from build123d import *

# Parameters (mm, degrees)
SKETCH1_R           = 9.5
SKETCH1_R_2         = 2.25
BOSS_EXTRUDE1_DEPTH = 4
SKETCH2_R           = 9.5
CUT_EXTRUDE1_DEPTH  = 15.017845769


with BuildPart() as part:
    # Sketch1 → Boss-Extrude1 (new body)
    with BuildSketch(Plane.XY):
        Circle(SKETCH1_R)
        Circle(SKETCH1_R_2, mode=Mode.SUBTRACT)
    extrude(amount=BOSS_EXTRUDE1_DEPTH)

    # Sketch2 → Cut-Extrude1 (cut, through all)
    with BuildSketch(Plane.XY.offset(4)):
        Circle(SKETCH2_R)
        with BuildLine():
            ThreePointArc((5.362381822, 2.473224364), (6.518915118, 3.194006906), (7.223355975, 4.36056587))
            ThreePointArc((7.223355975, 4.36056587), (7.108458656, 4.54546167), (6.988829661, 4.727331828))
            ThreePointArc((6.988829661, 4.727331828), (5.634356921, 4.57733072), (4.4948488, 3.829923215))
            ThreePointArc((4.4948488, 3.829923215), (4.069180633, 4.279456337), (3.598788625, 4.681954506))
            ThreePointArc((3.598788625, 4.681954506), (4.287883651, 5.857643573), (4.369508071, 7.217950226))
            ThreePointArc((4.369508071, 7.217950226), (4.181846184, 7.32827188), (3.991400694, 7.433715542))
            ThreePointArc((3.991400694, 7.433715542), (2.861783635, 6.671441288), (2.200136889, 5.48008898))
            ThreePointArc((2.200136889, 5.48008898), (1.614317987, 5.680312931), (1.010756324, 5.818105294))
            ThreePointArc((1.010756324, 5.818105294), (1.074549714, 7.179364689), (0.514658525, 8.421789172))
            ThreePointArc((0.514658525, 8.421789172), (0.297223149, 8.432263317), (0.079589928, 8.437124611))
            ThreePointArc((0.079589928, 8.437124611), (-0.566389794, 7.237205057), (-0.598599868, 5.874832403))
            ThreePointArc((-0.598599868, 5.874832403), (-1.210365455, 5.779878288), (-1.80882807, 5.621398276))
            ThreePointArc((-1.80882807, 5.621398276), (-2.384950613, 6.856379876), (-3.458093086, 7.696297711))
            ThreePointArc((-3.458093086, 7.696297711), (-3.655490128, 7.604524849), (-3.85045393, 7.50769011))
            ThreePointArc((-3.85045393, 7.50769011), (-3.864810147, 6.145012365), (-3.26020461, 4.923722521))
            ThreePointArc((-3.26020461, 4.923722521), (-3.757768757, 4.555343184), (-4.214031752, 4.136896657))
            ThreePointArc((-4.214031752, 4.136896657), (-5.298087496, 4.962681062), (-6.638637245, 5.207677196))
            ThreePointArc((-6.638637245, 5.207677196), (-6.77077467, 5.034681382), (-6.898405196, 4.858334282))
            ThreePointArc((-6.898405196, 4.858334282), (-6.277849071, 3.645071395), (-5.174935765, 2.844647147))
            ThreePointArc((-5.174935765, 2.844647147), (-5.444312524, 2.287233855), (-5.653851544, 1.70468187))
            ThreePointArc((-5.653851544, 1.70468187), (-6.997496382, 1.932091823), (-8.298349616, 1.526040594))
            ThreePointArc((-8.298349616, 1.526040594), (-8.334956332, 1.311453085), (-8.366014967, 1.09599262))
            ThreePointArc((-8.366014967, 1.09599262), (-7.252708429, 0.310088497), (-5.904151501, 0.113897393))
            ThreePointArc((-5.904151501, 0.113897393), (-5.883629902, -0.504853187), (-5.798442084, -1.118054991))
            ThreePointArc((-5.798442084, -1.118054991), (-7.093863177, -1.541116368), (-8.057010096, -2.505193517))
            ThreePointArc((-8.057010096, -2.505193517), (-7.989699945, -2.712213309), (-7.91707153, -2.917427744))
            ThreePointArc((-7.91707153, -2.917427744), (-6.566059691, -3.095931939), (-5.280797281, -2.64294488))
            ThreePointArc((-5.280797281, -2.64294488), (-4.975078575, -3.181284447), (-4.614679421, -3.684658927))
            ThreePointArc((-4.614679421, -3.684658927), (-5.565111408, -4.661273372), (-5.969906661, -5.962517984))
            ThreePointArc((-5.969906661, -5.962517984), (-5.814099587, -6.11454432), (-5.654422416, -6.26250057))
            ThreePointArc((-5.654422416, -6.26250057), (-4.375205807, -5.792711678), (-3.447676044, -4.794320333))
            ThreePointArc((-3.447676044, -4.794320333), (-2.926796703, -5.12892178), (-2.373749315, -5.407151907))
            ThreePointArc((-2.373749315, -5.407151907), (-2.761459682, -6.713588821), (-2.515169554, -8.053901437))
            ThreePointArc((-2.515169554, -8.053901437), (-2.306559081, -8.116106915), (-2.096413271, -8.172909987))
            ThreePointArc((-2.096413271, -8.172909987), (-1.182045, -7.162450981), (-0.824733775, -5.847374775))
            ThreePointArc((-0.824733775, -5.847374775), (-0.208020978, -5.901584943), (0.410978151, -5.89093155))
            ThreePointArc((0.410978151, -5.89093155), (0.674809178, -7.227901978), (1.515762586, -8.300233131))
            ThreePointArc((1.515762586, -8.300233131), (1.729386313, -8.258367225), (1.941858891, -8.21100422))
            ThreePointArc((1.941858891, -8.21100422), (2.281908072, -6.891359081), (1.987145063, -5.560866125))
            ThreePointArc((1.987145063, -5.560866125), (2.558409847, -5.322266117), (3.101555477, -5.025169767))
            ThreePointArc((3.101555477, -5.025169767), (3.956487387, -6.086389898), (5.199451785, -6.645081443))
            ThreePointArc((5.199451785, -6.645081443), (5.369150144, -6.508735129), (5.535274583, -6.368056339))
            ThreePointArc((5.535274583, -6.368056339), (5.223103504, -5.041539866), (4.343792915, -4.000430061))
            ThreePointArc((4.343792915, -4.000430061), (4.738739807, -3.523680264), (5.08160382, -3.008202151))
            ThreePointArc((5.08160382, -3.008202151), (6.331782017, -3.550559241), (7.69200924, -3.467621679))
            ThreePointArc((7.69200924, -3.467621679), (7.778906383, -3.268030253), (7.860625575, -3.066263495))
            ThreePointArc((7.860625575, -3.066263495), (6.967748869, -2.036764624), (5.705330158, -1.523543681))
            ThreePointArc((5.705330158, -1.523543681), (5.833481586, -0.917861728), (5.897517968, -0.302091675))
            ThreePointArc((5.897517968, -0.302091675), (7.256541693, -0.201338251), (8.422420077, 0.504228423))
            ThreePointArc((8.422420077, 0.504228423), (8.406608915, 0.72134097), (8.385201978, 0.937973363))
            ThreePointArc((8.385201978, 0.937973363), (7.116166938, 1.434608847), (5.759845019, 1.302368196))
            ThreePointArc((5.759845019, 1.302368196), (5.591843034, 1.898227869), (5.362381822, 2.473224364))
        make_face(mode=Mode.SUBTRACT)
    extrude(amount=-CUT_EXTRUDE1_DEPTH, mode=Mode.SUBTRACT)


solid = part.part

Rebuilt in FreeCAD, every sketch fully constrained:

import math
import FreeCAD as App
import Part
import Sketcher

V = App.Vector

doc = App.newDocument("Part")
body = doc.addObject("PartDesign::Body", "Body")

# Sketch on XY plane
sketch1 = doc.addObject("Sketcher::SketchObject", "Sketch")
body.addObject(sketch1)
sketch1.AttachmentSupport = (doc.XY_Plane, [""])
sketch1.MapMode = "FlatFace"
sketch1.addGeometry([
    Part.Circle(V(0, 0, 0), V(0, 0, 1), 9.5),
    Part.Circle(V(0, 0, 0), V(0, 0, 1), 2.2),
], False)
sketch1.addConstraint([
    Sketcher.Constraint("Coincident", 0, 3, -1, 1),
    Sketcher.Constraint("Coincident", 1, 3, -1, 1),
    Sketcher.Constraint("Diameter", 0, 19.0),
    Sketcher.Constraint("Diameter", 1, 4.5),
])
pad1 = doc.addObject("PartDesign::Pad", "Pad")
body.addObject(pad1)
pad1.Profile = sketch1
pad1.Length = 4

# Sketch on XY plane
sketch2 = doc.addObject("Sketcher::SketchObject", "Sketch001")
body.addObject(sketch2)
sketch2.AttachmentSupport = (doc.XY_Plane, [""])
sketch2.MapMode = "FlatFace"
sketch2.AttachmentOffset = App.Placement(V(0, 0, 4), App.Rotation())
sketch2.addGeometry([
    Part.Circle(V(0, 0, 0), V(0, 0, 1), 9.5),  # 0
    Part.ArcOfCircle(Part.Circle(V(4.44, 5.25, 0), V(0, 0, 1), 2.92), math.radians(-72), math.radians(-18)),  # 1
    Part.ArcOfCircle(Part.Circle(V(0, 0, 0), V(0, 0, 1), 5.91), math.radians(12.74), math.radians(24.76)),  # 2
    Part.ArcOfCircle(Part.Circle(V(6.71, -1.46, 0), V(0, 0, 1), 2.92), math.radians(55), math.radians(109)),  # 3
    Part.ArcOfCircle(Part.Circle(V(0, 0, 0), V(0, 0, 1), 8.44), math.radians(3.43), math.radians(6.38)),  # 4
    Part.ArcOfCircle(Part.Circle(V(6.37, 2.59, 0), V(0, 0, 1), 2.93), math.radians(-99), math.radians(-45)),  # 5
    Part.ArcOfCircle(Part.Circle(V(0, 0, 0), V(0, 0, 1), 5.91), math.radians(-14.95), math.radians(-2.93)),  # 6
    Part.ArcOfCircle(Part.Circle(V(5.27, -4.42, 0), V(0, 0, 1), 2.92), math.radians(27), math.radians(81)),  # 7
    Part.ArcOfCircle(Part.Circle(V(0, 0, 0), V(0, 0, 1), 8.44), math.radians(-24.27), math.radians(-21.31)),  # 8
    Part.ArcOfCircle(Part.Circle(V(6.84, -0.67, 0), V(0, 0, 1), 2.93), math.radians(-127), math.radians(-73)),  # 9
    Part.ArcOfCircle(Part.Circle(V(0, 0, 0), V(0, 0, 1), 5.91), math.radians(-42.64), math.radians(-30.62)),  # 10
    Part.ArcOfCircle(Part.Circle(V(2.61, -6.36, 0), V(0, 0, 1), 2.93), math.radians(0), math.radians(54)),  # 11
    Part.ArcOfCircle(Part.Circle(V(0, 0, 0), V(0, 0, 1), 8.44), math.radians(-51.96), math.radians(-49)),  # 12
    Part.ArcOfCircle(Part.Circle(V(5.74, -3.77, 0), V(0, 0, 1), 2.92), math.radians(-155), math.radians(-101)),  # 13
    Part.ArcOfCircle(Part.Circle(V(0, 0, 0), V(0, 0, 1), 5.91), math.radians(-70.34), math.radians(-58.32)),  # 14
    Part.ArcOfCircle(Part.Circle(V(-0.64, -6.84, 0), V(0, 0, 1), 2.92), math.radians(-28), math.radians(26)),  # 15
    Part.ArcOfCircle(Part.Circle(V(0, 0, 0), V(0, 0, 1), 8.44), math.radians(-79.65), math.radians(-76.69)),  # 16
    Part.ArcOfCircle(Part.Circle(V(3.33, -6.01, 0), V(0, 0, 1), 2.93), math.radians(178), math.radians(232)),  # 17
    Part.ArcOfCircle(Part.Circle(V(0, 0, 0), V(0, 0, 1), 5.91), math.radians(-98.03), math.radians(-86.01)),  # 18
    Part.ArcOfCircle(Part.Circle(V(-3.75, -5.76, 0), V(0, 0, 1), 2.93), math.radians(-56), math.radians(-2)),  # 19
    Part.ArcOfCircle(Part.Circle(V(0, 0, 0), V(0, 0, 1), 8.44), math.radians(-107.34), math.radians(-104.39)),  # 20
    Part.ArcOfCircle(Part.Circle(V(0.16, -6.87, 0), V(0, 0, 1), 2.92), math.radians(150), math.radians(204)),  # 21
    Part.ArcOfCircle(Part.Circle(V(0, 0, 0), V(0, 0, 1), 5.91), math.radians(-125.72), math.radians(-113.7)),  # 22
    Part.ArcOfCircle(Part.Circle(V(-6, -3.36, 0), V(0, 0, 1), 2.92), math.radians(-83), math.radians(-29)),  # 23
    Part.ArcOfCircle(Part.Circle(V(0, 0, 0), V(0, 0, 1), 8.44), math.radians(-135.04), math.radians(-132.08)),  # 24
    Part.ArcOfCircle(Part.Circle(V(-3.05, -6.16, 0), V(0, 0, 1), 2.92), math.radians(122), math.radians(176)),  # 25
    Part.ArcOfCircle(Part.Circle(V(0, 0, 0), V(0, 0, 1), 5.91), math.radians(-153.41), math.radians(-141.39)),  # 26
    Part.ArcOfCircle(Part.Circle(V(-6.87, -0.19, 0), V(0, 0, 1), 2.92), math.radians(-111), math.radians(-57)),  # 27
    Part.ArcOfCircle(Part.Circle(V(0, 0, 0), V(0, 0, 1), 8.44), math.radians(-162.73), math.radians(-159.77)),  # 28
    Part.ArcOfCircle(Part.Circle(V(-5.56, -4.03, 0), V(0, 0, 1), 2.92), math.radians(95), math.radians(148)),  # 29
    Part.ArcOfCircle(Part.Circle(V(0, 0, 0), V(0, 0, 1), 5.91), math.radians(178.89), math.radians(190.91)),  # 30
    Part.ArcOfCircle(Part.Circle(V(-6.17, 3.03, 0), V(0, 0, 1), 2.92), math.radians(-139), math.radians(-85)),  # 31
    Part.ArcOfCircle(Part.Circle(V(0, 0, 0), V(0, 0, 1), 8.44), math.radians(169.58), math.radians(172.54)),  # 32
    Part.ArcOfCircle(Part.Circle(V(-6.8, -0.99, 0), V(0, 0, 1), 2.93), math.radians(67), math.radians(121)),  # 33
    Part.ArcOfCircle(Part.Circle(V(0, 0, 0), V(0, 0, 1), 5.91), math.radians(151.2), math.radians(163.22)),  # 34
    Part.ArcOfCircle(Part.Circle(V(-4.06, 5.55, 0), V(0, 0, 1), 2.92), math.radians(-166), math.radians(-112)),  # 35
    Part.ArcOfCircle(Part.Circle(V(0, 0, 0), V(0, 0, 1), 8.44), math.radians(141.89), math.radians(144.84)),  # 36
    Part.ArcOfCircle(Part.Circle(V(-6.48, 2.29, 0), V(0, 0, 1), 2.93), math.radians(39), math.radians(93)),  # 37
    Part.ArcOfCircle(Part.Circle(V(0, 0, 0), V(0, 0, 1), 5.91), math.radians(123.51), math.radians(135.53)),  # 38
    Part.ArcOfCircle(Part.Circle(V(-1.01, 6.8, 0), V(0, 0, 1), 2.92), math.radians(166), math.radians(220)),  # 39
    Part.ArcOfCircle(Part.Circle(V(0, 0, 0), V(0, 0, 1), 8.44), math.radians(114.2), math.radians(117.15)),  # 40
    Part.ArcOfCircle(Part.Circle(V(-4.67, 5.04, 0), V(0, 0, 1), 2.93), math.radians(12), math.radians(65)),  # 41
    Part.ArcOfCircle(Part.Circle(V(0, 0, 0), V(0, 0, 1), 5.91), math.radians(95.82), math.radians(107.84)),  # 42
    Part.ArcOfCircle(Part.Circle(V(2.26, 6.49, 0), V(0, 0, 1), 2.93), math.radians(138), math.radians(192)),  # 43
    Part.ArcOfCircle(Part.Circle(V(0, 0, 0), V(0, 0, 1), 8.44), math.radians(86.5), math.radians(89.46)),  # 44
    Part.ArcOfCircle(Part.Circle(V(-1.8, 6.63, 0), V(0, 0, 1), 2.93), math.radians(-16), math.radians(38)),  # 45
    Part.ArcOfCircle(Part.Circle(V(0, 0, 0), V(0, 0, 1), 5.91), math.radians(68.13), math.radians(80.14)),  # 46
    Part.ArcOfCircle(Part.Circle(V(5.02, 4.69, 0), V(0, 0, 1), 2.93), math.radians(111), math.radians(164)),  # 47
    Part.ArcOfCircle(Part.Circle(V(0, 0, 0), V(0, 0, 1), 8.44), math.radians(58.81), math.radians(61.77)),  # 48
    Part.ArcOfCircle(Part.Circle(V(1.49, 6.71, 0), V(0, 0, 1), 2.93), math.radians(-44), math.radians(10)),  # 49
    Part.ArcOfCircle(Part.Circle(V(0, 0, 0), V(0, 0, 1), 5.91), math.radians(40.43), math.radians(52.45)),  # 50
    Part.ArcOfCircle(Part.Circle(V(6.62, 1.83, 0), V(0, 0, 1), 2.92), math.radians(83), math.radians(137)),  # 51
    Part.ArcOfCircle(Part.Circle(V(0, 0, 0), V(0, 0, 1), 8.44), math.radians(31.12), math.radians(34.07)),  # 52
], False)
sketch2.addConstraint([
    Sketcher.Constraint("Coincident", 1, 1, 2, 2),
    Sketcher.Constraint("Coincident", 2, 1, 3, 2),
    Sketcher.Constraint("Coincident", 3, 1, 4, 2),
    Sketcher.Constraint("Coincident", 4, 1, 5, 2),
    Sketcher.Constraint("Coincident", 5, 1, 6, 2),
    Sketcher.Constraint("Coincident", 6, 1, 7, 2),
    Sketcher.Constraint("Coincident", 7, 1, 8, 2),
    Sketcher.Constraint("Coincident", 8, 1, 9, 2),
    Sketcher.Constraint("Coincident", 9, 1, 10, 2),
    Sketcher.Constraint("Coincident", 10, 1, 11, 2),
    Sketcher.Constraint("Coincident", 11, 1, 12, 2),
    Sketcher.Constraint("Coincident", 12, 1, 13, 2),
    Sketcher.Constraint("Coincident", 13, 1, 14, 2),
    Sketcher.Constraint("Coincident", 14, 1, 15, 2),
    Sketcher.Constraint("Coincident", 15, 1, 16, 2),
    Sketcher.Constraint("Coincident", 16, 1, 17, 2),
    Sketcher.Constraint("Coincident", 17, 1, 18, 2),
    Sketcher.Constraint("Coincident", 18, 1, 19, 2),
    Sketcher.Constraint("Coincident", 19, 1, 20, 2),
    Sketcher.Constraint("Coincident", 20, 1, 21, 2),
    Sketcher.Constraint("Coincident", 21, 1, 22, 2),
    Sketcher.Constraint("Coincident", 22, 1, 23, 2),
    Sketcher.Constraint("Coincident", 23, 1, 24, 2),
    Sketcher.Constraint("Coincident", 24, 1, 25, 2),
    Sketcher.Constraint("Coincident", 25, 1, 26, 2),
    Sketcher.Constraint("Coincident", 26, 1, 27, 2),
    Sketcher.Constraint("Coincident", 27, 1, 28, 2),
    Sketcher.Constraint("Coincident", 28, 1, 29, 2),
    Sketcher.Constraint("Coincident", 29, 1, 30, 2),
    Sketcher.Constraint("Coincident", 30, 1, 31, 2),
    Sketcher.Constraint("Coincident", 31, 1, 32, 2),
    Sketcher.Constraint("Coincident", 32, 1, 33, 2),
    Sketcher.Constraint("Coincident", 33, 1, 34, 2),
    Sketcher.Constraint("Coincident", 34, 1, 35, 2),
    Sketcher.Constraint("Coincident", 35, 1, 36, 2),
    Sketcher.Constraint("Coincident", 36, 1, 37, 2),
    Sketcher.Constraint("Coincident", 37, 1, 38, 2),
    Sketcher.Constraint("Coincident", 38, 1, 39, 2),
    Sketcher.Constraint("Coincident", 39, 1, 40, 2),
    Sketcher.Constraint("Coincident", 40, 1, 41, 2),
    Sketcher.Constraint("Coincident", 41, 1, 42, 2),
    Sketcher.Constraint("Coincident", 42, 1, 43, 2),
    Sketcher.Constraint("Coincident", 43, 1, 44, 2),
    Sketcher.Constraint("Coincident", 44, 1, 45, 2),
    Sketcher.Constraint("Coincident", 45, 1, 46, 2),
    Sketcher.Constraint("Coincident", 46, 1, 47, 2),
    Sketcher.Constraint("Coincident", 47, 1, 48, 2),
    Sketcher.Constraint("Coincident", 48, 1, 49, 2),
    Sketcher.Constraint("Coincident", 49, 1, 50, 2),
    Sketcher.Constraint("Coincident", 50, 1, 51, 2),
    Sketcher.Constraint("Coincident", 51, 1, 52, 2),
    Sketcher.Constraint("Coincident", 52, 1, 1, 2),
    Sketcher.Constraint("Coincident", 0, 3, -1, 1),
    Sketcher.Constraint("Coincident", 2, 3, -1, 1),
    Sketcher.Constraint("Coincident", 4, 3, -1, 1),
    Sketcher.Constraint("Coincident", 6, 3, -1, 1),
    Sketcher.Constraint("Coincident", 8, 3, -1, 1),
    Sketcher.Constraint("Coincident", 10, 3, -1, 1),
    Sketcher.Constraint("Coincident", 12, 3, -1, 1),
    Sketcher.Constraint("Coincident", 14, 3, -1, 1),
    Sketcher.Constraint("Coincident", 16, 3, -1, 1),
    Sketcher.Constraint("Coincident", 18, 3, -1, 1),
    Sketcher.Constraint("Coincident", 20, 3, -1, 1),
    Sketcher.Constraint("Coincident", 22, 3, -1, 1),
    Sketcher.Constraint("Coincident", 24, 3, -1, 1),
    Sketcher.Constraint("Coincident", 26, 3, -1, 1),
    Sketcher.Constraint("Coincident", 28, 3, -1, 1),
    Sketcher.Constraint("Coincident", 30, 3, -1, 1),
    Sketcher.Constraint("Coincident", 32, 3, -1, 1),
    Sketcher.Constraint("Coincident", 34, 3, -1, 1),
    Sketcher.Constraint("Coincident", 36, 3, -1, 1),
    Sketcher.Constraint("Coincident", 38, 3, -1, 1),
    Sketcher.Constraint("Coincident", 40, 3, -1, 1),
    Sketcher.Constraint("Coincident", 42, 3, -1, 1),
    Sketcher.Constraint("Coincident", 44, 3, -1, 1),
    Sketcher.Constraint("Coincident", 46, 3, -1, 1),
    Sketcher.Constraint("Coincident", 48, 3, -1, 1),
    Sketcher.Constraint("Coincident", 50, 3, -1, 1),
    Sketcher.Constraint("Coincident", 52, 3, -1, 1),
    Sketcher.Constraint("Equal", 1, 3),
    Sketcher.Constraint("Equal", 3, 5),
    Sketcher.Constraint("Equal", 2, 6),
    Sketcher.Constraint("Equal", 5, 7),
    Sketcher.Constraint("Equal", 4, 8),
    Sketcher.Constraint("Equal", 7, 9),
    Sketcher.Constraint("Equal", 6, 10),
    Sketcher.Constraint("Equal", 9, 11),
    Sketcher.Constraint("Equal", 8, 12),
    Sketcher.Constraint("Equal", 11, 13),
    Sketcher.Constraint("Equal", 10, 14),
    Sketcher.Constraint("Equal", 13, 15),
    Sketcher.Constraint("Equal", 12, 16),
    Sketcher.Constraint("Equal", 15, 17),
    Sketcher.Constraint("Equal", 14, 18),
    Sketcher.Constraint("Equal", 17, 19),
    Sketcher.Constraint("Equal", 16, 20),
    Sketcher.Constraint("Equal", 19, 21),
    Sketcher.Constraint("Equal", 18, 22),
    Sketcher.Constraint("Equal", 21, 23),
    Sketcher.Constraint("Equal", 20, 24),
    Sketcher.Constraint("Equal", 23, 25),
    Sketcher.Constraint("Equal", 22, 26),
    Sketcher.Constraint("Equal", 25, 27),
    Sketcher.Constraint("Equal", 24, 28),
    Sketcher.Constraint("Equal", 27, 29),
    Sketcher.Constraint("Equal", 26, 30),
    Sketcher.Constraint("Equal", 29, 31),
    Sketcher.Constraint("Equal", 28, 32),
    Sketcher.Constraint("Equal", 31, 33),
    Sketcher.Constraint("Equal", 30, 34),
    Sketcher.Constraint("Equal", 33, 35),
    Sketcher.Constraint("Equal", 32, 36),
    Sketcher.Constraint("Equal", 35, 37),
    Sketcher.Constraint("Equal", 34, 38),
    Sketcher.Constraint("Equal", 37, 39),
    Sketcher.Constraint("Equal", 36, 40),
    Sketcher.Constraint("Equal", 39, 41),
    Sketcher.Constraint("Equal", 38, 42),
    Sketcher.Constraint("Equal", 41, 43),
    Sketcher.Constraint("Equal", 28, 44),
    Sketcher.Constraint("Equal", 43, 45),
    Sketcher.Constraint("Equal", 42, 46),
    Sketcher.Constraint("Equal", 45, 47),
    Sketcher.Constraint("Equal", 44, 48),
    Sketcher.Constraint("Equal", 47, 49),
    Sketcher.Constraint("Equal", 46, 50),
    Sketcher.Constraint("Equal", 49, 51),
    Sketcher.Constraint("Equal", 40, 52),
    Sketcher.Constraint("Diameter", 0, 19.0),
    Sketcher.Constraint("Radius", 1, 2.925),
    Sketcher.Constraint("Radius", 4, 8.437501),
    Sketcher.Constraint("Radius", 2, 5.90525),
    Sketcher.Constraint("DistanceX", 19, 3, -1, 1, 3.748401),
    Sketcher.Constraint("DistanceX", -1, 1, 3, 1, 8.385202),
    Sketcher.Constraint("DistanceY", 20, 1, -1, 1, 8.053901),
    Sketcher.Constraint("DistanceY", 23, 1, -1, 1, 6.262501),
    Sketcher.Constraint("DistanceY", -1, 1, 41, 1, 5.621398),
    Sketcher.Constraint("DistanceX", 42, 1, -1, 1, 0.5986),
    Sketcher.Constraint("DistanceX", -1, 1, 47, 1, 3.991401),
    Sketcher.Constraint("DistanceX", -1, 1, 1, 3, 4.43613),
    Sketcher.Constraint("DistanceY", -1, 1, 5, 3, 2.58503),
    Sketcher.Constraint("DistanceY", 7, 3, -1, 1, 4.415252),
    Sketcher.Constraint("DistanceX", -1, 1, 13, 3, 5.744149),
    Sketcher.Constraint("DistanceY", 17, 3, -1, 1, 6.008712),
    Sketcher.Constraint("DistanceX", 25, 3, -1, 1, 3.051369),
    Sketcher.Constraint("DistanceY", 25, 3, -1, 1, 6.156841),
    Sketcher.Constraint("DistanceY", 27, 3, -1, 1, 0.186658),
    Sketcher.Constraint("DistanceX", 29, 3, -1, 1, 5.56308),
    Sketcher.Constraint("DistanceY", 29, 3, -1, 1, 4.03357),
    Sketcher.Constraint("DistanceY", -1, 1, 31, 3, 3.02689),
    Sketcher.Constraint("DistanceX", 39, 3, -1, 1, 1.01326),
    Sketcher.Constraint("DistanceX", -1, 1, 43, 3, 2.26124),
    Sketcher.Constraint("DistanceX", 45, 3, -1, 1, 1.798759),
    Sketcher.Constraint("DistanceX", -1, 1, 1, 1, 5.362382),
    Sketcher.Constraint("DistanceY", -1, 1, 2, 1, 1.302368),
    Sketcher.Constraint("DistanceX", -1, 1, 4, 1, 8.42242),
    Sketcher.Constraint("DistanceX", -1, 1, 6, 1, 5.70533),
    Sketcher.Constraint("DistanceX", -1, 1, 8, 1, 7.692009),
    Sketcher.Constraint("DistanceY", 10, 1, -1, 1, 4.00043),
    Sketcher.Constraint("DistanceX", -1, 1, 12, 1, 5.199452),
    Sketcher.Constraint("DistanceX", -1, 1, 15, 1, 1.941859),
    Sketcher.Constraint("DistanceX", -1, 1, 17, 1, 0.410978),
    Sketcher.Constraint("DistanceY", 19, 1, -1, 1, 8.17291),
    Sketcher.Constraint("DistanceX", 21, 1, -1, 1, 2.373749),
    Sketcher.Constraint("DistanceY", 22, 1, -1, 1, 4.79432),
    Sketcher.Constraint("DistanceX", 27, 1, -1, 1, 7.917072),
    Sketcher.Constraint("DistanceX", 32, 1, -1, 1, 8.29835),
    Sketcher.Constraint("DistanceX", 33, 1, -1, 1, 5.653852),
    Sketcher.Constraint("DistanceX", 37, 1, -1, 1, 4.214032),
    Sketcher.Constraint("DistanceY", -1, 1, 39, 1, 7.50769),
    Sketcher.Constraint("DistanceX", -1, 1, 44, 1, 0.514659),
    Sketcher.Constraint("DistanceY", -1, 1, 46, 1, 5.480089),
    Sketcher.Constraint("DistanceX", -1, 1, 48, 1, 4.369508),
    Sketcher.Constraint("DistanceX", -1, 1, 49, 1, 3.598789),
    Sketcher.Constraint("DistanceX", -1, 1, 50, 1, 4.494849),
    Sketcher.Constraint("DistanceX", -1, 1, 51, 1, 6.98883),
    Sketcher.Constraint("DistanceX", -1, 1, 9, 3, 6.838777),
    Sketcher.Constraint("DistanceX", -1, 1, 11, 3, 2.610298),
    Sketcher.Constraint("DistanceX", 15, 3, -1, 1, 0.642665),
    Sketcher.Constraint("DistanceX", 31, 3, -1, 1, 6.168912),
    Sketcher.Constraint("DistanceX", 35, 3, -1, 1, 4.055635),
    Sketcher.Constraint("DistanceY", -1, 1, 35, 3, 5.547015),
    Sketcher.Constraint("DistanceX", 37, 3, -1, 1, 6.479753),
    Sketcher.Constraint("DistanceX", 41, 3, -1, 1, 4.674716),
])
pocket1 = doc.addObject("PartDesign::Pocket", "Pocket")
body.addObject(pocket1)
pocket1.Profile = sketch2
pocket1.Type = "ThroughAll"

doc.recompute()
